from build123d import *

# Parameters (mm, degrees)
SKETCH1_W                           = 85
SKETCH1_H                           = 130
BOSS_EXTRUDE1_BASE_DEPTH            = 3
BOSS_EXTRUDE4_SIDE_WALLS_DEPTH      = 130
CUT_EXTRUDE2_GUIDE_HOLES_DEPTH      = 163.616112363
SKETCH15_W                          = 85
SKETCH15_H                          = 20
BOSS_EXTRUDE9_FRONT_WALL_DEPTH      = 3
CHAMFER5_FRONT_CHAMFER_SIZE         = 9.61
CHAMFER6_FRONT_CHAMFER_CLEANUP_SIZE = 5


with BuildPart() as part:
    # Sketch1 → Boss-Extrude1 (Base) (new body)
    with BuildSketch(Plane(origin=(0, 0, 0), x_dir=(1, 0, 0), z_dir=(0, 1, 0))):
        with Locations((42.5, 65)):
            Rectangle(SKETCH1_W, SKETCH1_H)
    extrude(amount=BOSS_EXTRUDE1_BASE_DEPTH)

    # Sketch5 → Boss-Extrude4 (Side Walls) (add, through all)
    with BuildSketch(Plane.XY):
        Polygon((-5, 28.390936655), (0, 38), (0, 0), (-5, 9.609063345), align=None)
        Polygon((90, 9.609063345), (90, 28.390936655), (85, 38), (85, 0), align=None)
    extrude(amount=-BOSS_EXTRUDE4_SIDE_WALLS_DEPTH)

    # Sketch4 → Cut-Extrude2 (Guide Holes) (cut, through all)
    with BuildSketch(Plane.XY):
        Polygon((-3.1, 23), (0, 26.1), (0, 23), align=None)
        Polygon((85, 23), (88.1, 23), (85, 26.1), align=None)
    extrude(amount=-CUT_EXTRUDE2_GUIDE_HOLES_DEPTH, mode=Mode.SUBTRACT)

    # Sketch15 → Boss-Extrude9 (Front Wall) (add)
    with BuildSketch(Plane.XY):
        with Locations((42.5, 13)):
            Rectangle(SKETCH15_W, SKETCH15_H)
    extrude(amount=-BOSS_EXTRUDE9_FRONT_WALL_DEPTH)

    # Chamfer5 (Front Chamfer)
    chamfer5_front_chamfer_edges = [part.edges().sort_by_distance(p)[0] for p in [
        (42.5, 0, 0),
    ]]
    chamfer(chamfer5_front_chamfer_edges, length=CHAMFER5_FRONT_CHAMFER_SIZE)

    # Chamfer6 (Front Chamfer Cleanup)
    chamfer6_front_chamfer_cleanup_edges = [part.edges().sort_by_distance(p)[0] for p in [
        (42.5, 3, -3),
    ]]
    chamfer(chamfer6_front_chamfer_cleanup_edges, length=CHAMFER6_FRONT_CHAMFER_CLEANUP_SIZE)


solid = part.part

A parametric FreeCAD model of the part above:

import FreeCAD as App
import Part
import Sketcher


def edges_at(feature, points):
    """Names of the edges that pass closest to the given points."""
    edges = feature.Shape.Edges
    near = lambda p: min(range(len(edges)), key=lambda i: edges[i].distToShape(Part.Vertex(*p))[0])
    return sorted({f"Edge{near(p) + 1}" for p in points})

doc = App.newDocument("Part")
params = doc.addObject("Spreadsheet::Sheet", "Params")
for row, (alias, value) in enumerate([
    ("sketch1_width", "85 mm"),
    ("sketch1_height", "130 mm"),
    ("pad1_length", "3 mm"),
    ("sketch2_height", "38 mm"),
    ("pad2_length", "130 mm"),
    ("sketch3_width", "3.1 mm"),
    ("sketch4_width", "85 mm"),
    ("sketch4_height", "20 mm"),
    ("pad3_length", "3 mm"),
    ("chamfer_size", "9.61 mm"),
    ("chamfer2_size", "5 mm"),
], start=1):
    params.set(f"A{row}", alias)
    params.set(f"B{row}", "=" + value)
    params.setAlias(f"B{row}", alias)

body = doc.addObject("PartDesign::Body", "Body")

# Sketch on XZ plane
sketch1 = body.newObject("Sketcher::SketchObject", "Sketch")
sketch1.AttachmentSupport = (doc.getObject("XZ_Plane"), [""])
sketch1.MapMode = "FlatFace"
sketch1.addGeometry(Part.LineSegment(App.Vector(0, -130, 0), App.Vector(0, 0, 0)), False)
sketch1.addGeometry(Part.LineSegment(App.Vector(0, 0, 0), App.Vector(85, 0, 0)), False)
sketch1.addGeometry(Part.LineSegment(App.Vector(85, 0, 0), App.Vector(85, -130, 0)), False)
sketch1.addGeometry(Part.LineSegment(App.Vector(85, -130, 0), App.Vector(0, -130, 0)), False)
sketch1.addConstraint(Sketcher.Constraint("Coincident", 0, 2, 1, 1))
sketch1.addConstraint(Sketcher.Constraint("Coincident", 1, 2, 2, 1))
sketch1.addConstraint(Sketcher.Constraint("Coincident", 2, 2, 3, 1))
sketch1.addConstraint(Sketcher.Constraint("Coincident", 3, 2, 0, 1))
sketch1.addConstraint(Sketcher.Constraint("Vertical", 0))
sketch1.addConstraint(Sketcher.Constraint("Horizontal", 1))
sketch1.addConstraint(Sketcher.Constraint("Vertical", 2))
sketch1.addConstraint(Sketcher.Constraint("Horizontal", 3))
sketch1.addConstraint(Sketcher.Constraint("Coincident", 0, 2, -1, 1))
sketch1.addConstraint(Sketcher.Constraint("DistanceX", 1, 1, 1, 2, 85.0))
sketch1.addConstraint(Sketcher.Constraint("DistanceY", 0, 1, 0, 2, 130.0))
sketch1.setExpression("Constraints[9]", "Params.sketch1_width")
sketch1.setExpression("Constraints[10]", "Params.sketch1_height")
pad1 = body.newObject("PartDesign::Pad", "Pad")
pad1.Profile = sketch1
pad1.setExpression("Length", "Params.pad1_length")
pad1.Reversed = True

# Sketch on XY plane
sketch2 = body.newObject("Sketcher::SketchObject", "Sketch001")
sketch2.AttachmentSupport = (doc.getObject("XY_Plane"), [""])
sketch2.MapMode = "FlatFace"
sketch2.addGeometry(Part.LineSegment(App.Vector(0, 38, 0), App.Vector(-5, 28.390937, 0)), False)
sketch2.addGeometry(Part.LineSegment(App.Vector(-5, 28.390937, 0), App.Vector(-5, 9.609063, 0)), False)
sketch2.addGeometry(Part.LineSegment(App.Vector(-5, 9.609063, 0), App.Vector(0, 0, 0)), False)
sketch2.addGeometry(Part.LineSegment(App.Vector(0, 0, 0), App.Vector(0, 38, 0)), False)
sketch2.addGeometry(Part.LineSegment(App.Vector(90, 9.609063, 0), App.Vector(90, 28.390937, 0)), False)
sketch2.addGeometry(Part.LineSegment(App.Vector(90, 28.390937, 0), App.Vector(85, 38, 0)), False)
sketch2.addGeometry(Part.LineSegment(App.Vector(85, 38, 0), App.Vector(85, 0, 0)), False)
sketch2.addGeometry(Part.LineSegment(App.Vector(85, 0, 0), App.Vector(90, 9.609063, 0)), False)
sketch2.addConstraint(Sketcher.Constraint("Coincident", 0, 2, 1, 1))
sketch2.addConstraint(Sketcher.Constraint("Coincident", 1, 2, 2, 1))
sketch2.addConstraint(Sketcher.Constraint("Coincident", 2, 2, 3, 1))
sketch2.addConstraint(Sketcher.Constraint("Coincident", 3, 2, 0, 1))
sketch2.addConstraint(Sketcher.Constraint("Coincident", 4, 2, 5, 1))
sketch2.addConstraint(Sketcher.Constraint("Coincident", 5, 2, 6, 1))
sketch2.addConstraint(Sketcher.Constraint("Coincident", 6, 2, 7, 1))
sketch2.addConstraint(Sketcher.Constraint("Coincident", 7, 2, 4, 1))
sketch2.addConstraint(Sketcher.Constraint("Vertical", 1))
sketch2.addConstraint(Sketcher.Constraint("Vertical", 3))
sketch2.addConstraint(Sketcher.Constraint("Vertical", 4))
sketch2.addConstraint(Sketcher.Constraint("Vertical", 6))
sketch2.addConstraint(Sketcher.Constraint("Coincident", 2, 2, -1, 1))
sketch2.addConstraint(Sketcher.Constraint("PointOnObject", 6, 2, -1))
sketch2.addConstraint(Sketcher.Constraint("Parallel", 2, 5))
sketch2.addConstraint(Sketcher.Constraint("Parallel", 0, 7))
sketch2.addConstraint(Sketcher.Constraint("Horizontal", 0, 2, 4, 2))
sketch2.addConstraint(Sketcher.Constraint("Horizontal", 3, 2, 5, 2))
sketch2.addConstraint(Sketcher.Constraint("Horizontal", 1, 2, 7, 2))
sketch2.addConstraint(Sketcher.Constraint("DistanceY", 3, 1, 3, 2, 38.0))
sketch2.addConstraint(Sketcher.Constraint("DistanceX", 0, 2, -1, 1, 5.0))
sketch2.addConstraint(Sketcher.Constraint("DistanceX", -1, 1, 4, 2, 90.0))
sketch2.addConstraint(Sketcher.Constraint("DistanceY", 1, 2, 1, 1, 18.781873))
sketch2.setExpression("Constraints[19]", "Params.sketch2_height")
pad2 = body.newObject("PartDesign::Pad", "Pad001")
pad2.Profile = sketch2
pad2.setExpression("Length", "Params.pad2_length")
pad2.Reversed = True

# Sketch on XY plane
sketch3 = body.newObject("Sketcher::SketchObject", "Sketch002")
sketch3.AttachmentSupport = (doc.getObject("XY_Plane"), [""])
sketch3.MapMode = "FlatFace"
sketch3.addGeometry(Part.LineSegment(App.Vector(0, 26.1, 0), App.Vector(-3.1, 23, 0)), False)
sketch3.addGeometry(Part.LineSegment(App.Vector(-3.1, 23, 0), App.Vector(0, 23, 0)), False)
sketch3.addGeometry(Part.LineSegment(App.Vector(0, 23, 0), App.Vector(0, 26.1, 0)), False)
sketch3.addGeometry(Part.LineSegment(App.Vector(85, 23, 0), App.Vector(88.1, 23, 0)), False)
sketch3.addGeometry(Part.LineSegment(App.Vector(88.1, 23, 0), App.Vector(85, 26.1, 0)), False)
sketch3.addGeometry(Part.LineSegment(App.Vector(85, 26.1, 0), App.Vector(85, 23, 0)), False)
sketch3.addConstraint(Sketcher.Constraint("Coincident", 0, 2, 1, 1))
sketch3.addConstraint(Sketcher.Constraint("Coincident", 1, 2, 2, 1))
sketch3.addConstraint(Sketcher.Constraint("Coincident", 2, 2, 0, 1))
sketch3.addConstraint(Sketcher.Constraint("Coincident", 3, 2, 4, 1))
sketch3.addConstraint(Sketcher.Constraint("Coincident", 4, 2, 5, 1))
sketch3.addConstraint(Sketcher.Constraint("Coincident", 5, 2, 3, 1))
sketch3.addConstraint(Sketcher.Constraint("Horizontal", 1))
sketch3.addConstraint(Sketcher.Constraint("Vertical", 2))
sketch3.addConstraint(Sketcher.Constraint("Horizontal", 3))
sketch3.addConstraint(Sketcher.Constraint("Vertical", 5))
sketch3.addConstraint(Sketcher.Constraint("PointOnObject", 1, 2, -2))
sketch3.addConstraint(Sketcher.Constraint("Perpendicular", 0, 4))
sketch3.addConstraint(Sketcher.Constraint("Horizontal", 1, 2, 3, 2))
sketch3.addConstraint(Sketcher.Constraint("Horizontal", 2, 2, 4, 2))
sketch3.addConstraint(Sketcher.Constraint("Equal", 1, 3))
sketch3.addConstraint(Sketcher.Constraint("DistanceX", 1, 1, 1, 2, 3.1))
sketch3.addConstraint(Sketcher.Constraint("DistanceY", -1, 1, 0, 2, 23.0))
sketch3.addConstraint(Sketcher.Constraint("DistanceX", -1, 1, 4, 2, 85.0))
sketch3.setExpression("Constraints[15]", "Params.sketch3_width")
pocket1 = body.newObject("PartDesign::Pocket", "Pocket")
pocket1.Profile = sketch3
pocket1.Type = "ThroughAll"

# Sketch on XY plane
sketch4 = body.newObject("Sketcher::SketchObject", "Sketch003")
sketch4.AttachmentSupport = (doc.getObject("XY_Plane"), [""])
sketch4.MapMode = "FlatFace"
sketch4.addGeometry(Part.LineSegment(App.Vector(0, 23, 0), App.Vector(0, 3, 0)), False)
sketch4.addGeometry(Part.LineSegment(App.Vector(0, 3, 0), App.Vector(85, 3, 0)), False)
sketch4.addGeometry(Part.LineSegment(App.Vector(85, 3, 0), App.Vector(85, 23, 0)), False)
sketch4.addGeometry(Part.LineSegment(App.Vector(85, 23, 0), App.Vector(0, 23, 0)), False)
sketch4.addConstraint(Sketcher.Constraint("Coincident", 0, 2, 1, 1))
sketch4.addConstraint(Sketcher.Constraint("Coincident", 1, 2, 2, 1))
sketch4.addConstraint(Sketcher.Constraint("Coincident", 2, 2, 3, 1))
sketch4.addConstraint(Sketcher.Constraint("Coincident", 3, 2, 0, 1))
sketch4.addConstraint(Sketcher.Constraint("Vertical", 0))
sketch4.addConstraint(Sketcher.Constraint("Horizontal", 1))
sketch4.addConstraint(Sketcher.Constraint("Vertical", 2))
sketch4.addConstraint(Sketcher.Constraint("Horizontal", 3))
sketch4.addConstraint(Sketcher.Constraint("PointOnObject", 0, 2, -2))
sketch4.addConstraint(Sketcher.Constraint("DistanceX", 1, 1, 1, 2, 85.0))
sketch4.addConstraint(Sketcher.Constraint("DistanceY", 0, 2, 0, 1, 20.0))
sketch4.addConstraint(Sketcher.Constraint("DistanceY", -1, 1, 0, 2, 3.0))
sketch4.setExpression("Constraints[9]", "Params.sketch4_width")
sketch4.setExpression("Constraints[10]", "Params.sketch4_height")
pad3 = body.newObject("PartDesign::Pad", "Pad002")
pad3.Profile = sketch4
pad3.setExpression("Length", "Params.pad3_length")
pad3.Reversed = True
doc.recompute()

chamfer = body.newObject("PartDesign::Chamfer", "Chamfer")
chamfer.Base = (pad3, edges_at(pad3, [(42.5, 0, 0)]))
chamfer.setExpression("Size", "Params.chamfer_size")
doc.recompute()

chamfer2 = body.newObject("PartDesign::Chamfer", "Chamfer001")
chamfer2.Base = (chamfer, edges_at(chamfer, [(42.5, 3, -3)]))
chamfer2.setExpression("Size", "Params.chamfer2_size")

doc.recompute()
